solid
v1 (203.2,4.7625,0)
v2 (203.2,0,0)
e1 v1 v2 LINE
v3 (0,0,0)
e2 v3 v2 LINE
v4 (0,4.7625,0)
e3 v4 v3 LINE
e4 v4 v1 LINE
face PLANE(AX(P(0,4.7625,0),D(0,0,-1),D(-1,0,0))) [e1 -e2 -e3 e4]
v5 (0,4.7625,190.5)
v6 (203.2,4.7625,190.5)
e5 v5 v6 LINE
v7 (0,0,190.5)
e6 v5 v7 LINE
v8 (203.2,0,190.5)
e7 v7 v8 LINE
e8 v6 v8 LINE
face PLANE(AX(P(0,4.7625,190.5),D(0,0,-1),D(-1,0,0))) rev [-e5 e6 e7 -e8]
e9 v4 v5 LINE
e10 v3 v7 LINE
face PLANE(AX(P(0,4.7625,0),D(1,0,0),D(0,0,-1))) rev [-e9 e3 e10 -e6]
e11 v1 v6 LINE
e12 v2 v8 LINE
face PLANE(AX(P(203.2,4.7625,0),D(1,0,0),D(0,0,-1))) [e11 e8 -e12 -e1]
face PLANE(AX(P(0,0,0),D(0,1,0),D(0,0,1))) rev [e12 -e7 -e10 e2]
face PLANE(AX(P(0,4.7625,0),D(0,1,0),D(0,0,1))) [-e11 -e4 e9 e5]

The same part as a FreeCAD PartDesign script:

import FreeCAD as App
import Part
import Sketcher
from FreeCAD import Vector
Q = App.Units.Quantity


def add_polygon(sketch, points):
    """Adds a closed chain of lines whose ends are joined by coincident constraints."""
    first, n = sketch.GeometryCount, len(points)
    for a, b in zip(points, points[1:] + points[:1]):
        sketch.addGeometry(Part.LineSegment(App.Vector(*a, 0), App.Vector(*b, 0)), False)
    for i in range(n):
        sketch.addConstraint(Sketcher.Constraint("Coincident", first + i, 2, first + (i + 1) % n, 1))

doc = App.newDocument("Part")
body = doc.addObject("PartDesign::Body", "Body")

sketch1 = doc.addObject("Sketcher::SketchObject", "Sketch")
body.addObject(sketch1)
sketch1.AttachmentSupport = (doc.XZ_Plane, [""])
sketch1.MapMode = "FlatFace"
add_polygon(sketch1, [(0, 0), (0, 190), (203, 190), (203, 0)])
sketch1.addConstraint([
    Sketcher.Constraint("Vertical", 0),
    Sketcher.Constraint("Horizontal", 1),
    Sketcher.Constraint("Vertical", 2),
    Sketcher.Constraint("Horizontal", 3),
    Sketcher.Constraint("Coincident", 3, 2, -1, 1),
    Sketcher.Constraint("DistanceX", 1, 1, 1, 2, Q("8 in")),
    Sketcher.Constraint("DistanceY", 0, 1, 0, 2, Q("7.5 in")),
])
pad1 = doc.addObject("PartDesign::Pad", "Pad")
body.addObject(pad1)
pad1.Profile = sketch1
pad1.Length = Q("0.1875 in")
pad1.Reversed = True

doc.recompute()
